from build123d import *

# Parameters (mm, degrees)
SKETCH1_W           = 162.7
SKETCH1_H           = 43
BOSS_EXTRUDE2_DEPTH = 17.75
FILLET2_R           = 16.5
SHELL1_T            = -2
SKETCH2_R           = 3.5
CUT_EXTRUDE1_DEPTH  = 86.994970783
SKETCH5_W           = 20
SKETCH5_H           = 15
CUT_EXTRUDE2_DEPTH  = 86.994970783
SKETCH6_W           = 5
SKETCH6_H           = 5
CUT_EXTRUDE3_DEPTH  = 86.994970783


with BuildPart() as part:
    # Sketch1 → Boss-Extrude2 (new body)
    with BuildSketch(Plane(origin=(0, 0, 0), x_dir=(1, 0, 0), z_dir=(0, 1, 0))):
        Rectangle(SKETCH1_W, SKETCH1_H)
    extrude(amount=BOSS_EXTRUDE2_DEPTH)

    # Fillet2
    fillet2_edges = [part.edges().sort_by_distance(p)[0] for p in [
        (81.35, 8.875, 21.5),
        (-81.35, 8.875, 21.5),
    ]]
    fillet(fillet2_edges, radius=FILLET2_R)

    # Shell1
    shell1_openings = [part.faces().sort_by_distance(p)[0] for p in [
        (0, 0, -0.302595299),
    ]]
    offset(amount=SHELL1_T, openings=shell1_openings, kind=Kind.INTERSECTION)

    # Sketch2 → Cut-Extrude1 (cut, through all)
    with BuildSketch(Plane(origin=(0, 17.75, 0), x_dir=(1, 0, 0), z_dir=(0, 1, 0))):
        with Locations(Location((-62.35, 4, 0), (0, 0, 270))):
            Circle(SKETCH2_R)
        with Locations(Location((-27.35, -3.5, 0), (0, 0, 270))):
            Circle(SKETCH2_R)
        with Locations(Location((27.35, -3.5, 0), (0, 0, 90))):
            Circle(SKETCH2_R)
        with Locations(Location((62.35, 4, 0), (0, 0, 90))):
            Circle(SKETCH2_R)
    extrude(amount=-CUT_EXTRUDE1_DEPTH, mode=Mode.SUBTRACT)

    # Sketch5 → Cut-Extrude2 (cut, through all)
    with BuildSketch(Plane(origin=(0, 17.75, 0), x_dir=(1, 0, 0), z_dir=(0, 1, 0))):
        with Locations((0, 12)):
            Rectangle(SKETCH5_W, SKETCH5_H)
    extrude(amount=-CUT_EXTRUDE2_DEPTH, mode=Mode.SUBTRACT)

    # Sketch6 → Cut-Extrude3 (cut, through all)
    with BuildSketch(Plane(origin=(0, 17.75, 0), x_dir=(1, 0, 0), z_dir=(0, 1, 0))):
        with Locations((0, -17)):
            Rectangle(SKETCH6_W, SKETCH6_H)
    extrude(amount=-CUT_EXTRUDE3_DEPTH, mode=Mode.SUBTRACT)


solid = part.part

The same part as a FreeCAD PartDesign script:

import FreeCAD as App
import Part
import Sketcher


def edges_at(feature, points):
    """Names of the edges that pass closest to the given points."""
    edges = feature.Shape.Edges
    near = lambda p: min(range(len(edges)), key=lambda i: edges[i].distToShape(Part.Vertex(*p))[0])
    return sorted({f"Edge{near(p) + 1}" for p in points})


def faces_at(feature, points):
    """Names of the faces that lie closest to the given points."""
    faces = feature.Shape.Faces
    near = lambda p: min(range(len(faces)), key=lambda i: faces[i].distToShape(Part.Vertex(*p))[0])
    return sorted({f"Face{near(p) + 1}" for p in points})

doc = App.newDocument("Part")
body = doc.addObject("PartDesign::Body", "Body")

# Sketch on XZ plane
sketch1 = body.newObject("Sketcher::SketchObject", "Sketch")
sketch1.AttachmentSupport = (doc.getObject("XZ_Plane"), [""])
sketch1.MapMode = "FlatFace"
sketch1.addGeometry([
    Part.LineSegment(App.Vector(-81, -22, 0), App.Vector(-81, 22, 0)),
    Part.LineSegment(App.Vector(-81, 22, 0), App.Vector(81, 22, 0)),
    Part.LineSegment(App.Vector(81, 22, 0), App.Vector(81, -22, 0)),
    Part.LineSegment(App.Vector(81, -22, 0), App.Vector(-81, -22, 0)),
], False)
sketch1.addConstraint([
    Sketcher.Constraint("Coincident", 0, 2, 1, 1),
    Sketcher.Constraint("Coincident", 1, 2, 2, 1),
    Sketcher.Constraint("Coincident", 2, 2, 3, 1),
    Sketcher.Constraint("Coincident", 3, 2, 0, 1),
    Sketcher.Constraint("Vertical", 0),
    Sketcher.Constraint("Horizontal", 1),
    Sketcher.Constraint("Vertical", 2),
    Sketcher.Constraint("Horizontal", 3),
    Sketcher.Constraint("Symmetric", 0, 2, 2, 2, -1, 1),
    Sketcher.Constraint("DistanceY", 0, 1, 0, 2, 43.0),
    Sketcher.Constraint("DistanceX", 1, 1, 1, 2, 162.7),
])
pad1 = body.newObject("PartDesign::Pad", "Pad")
pad1.Profile = sketch1
pad1.Length = 17.75
pad1.Reversed = True
doc.recompute()

fillet = body.newObject("PartDesign::Fillet", "Fillet")
fillet.Base = (pad1, edges_at(pad1, [(81.35, 8.875, 21.5), (-81.35, 8.875, 21.5)]))
fillet.Radius = 16.5
doc.recompute()

thickness = body.newObject("PartDesign::Thickness", "Thickness")
thickness.Base = (fillet, faces_at(fillet, [(0, 0, 0)]))
thickness.Value = 2
thickness.Reversed = True
thickness.Join = "Intersection"

# Sketch on XZ plane
sketch2 = body.newObject("Sketcher::SketchObject", "Sketch001")
sketch2.AttachmentSupport = (doc.getObject("XZ_Plane"), [""])
sketch2.MapMode = "FlatFace"
sketch2.AttachmentOffset = App.Placement(App.Vector(0, 0, -17.75), App.Rotation())
sketch2.addGeometry([
    Part.Circle(App.Vector(-62.4, -4, 0), App.Vector(0, 0, 1), 3.5),
    Part.Circle(App.Vector(-27.4, 3.5, 0), App.Vector(0, 0, 1), 3.5),
    Part.Circle(App.Vector(27.4, 3.5, 0), App.Vector(0, 0, 1), 3.5),
    Part.Circle(App.Vector(62.4, -4, 0), App.Vector(0, 0, 1), 3.5),
], False)
sketch2.addConstraint([
    Sketcher.Constraint("Equal", 0, 1),
    Sketcher.Constraint("Equal", 1, 2),
    Sketcher.Constraint("Equal", 2, 3),
    Sketcher.Constraint("Symmetric", 1, 3, 2, 3, -2),
    Sketcher.Constraint("Symmetric", 0, 3, 3, 3, -2),
    Sketcher.Constraint("Diameter", 0, 7.0),
    Sketcher.Constraint("DistanceY", 0, 3, -1, 1, 4.0),
    Sketcher.Constraint("DistanceX", 0, 3, 1, 3, 35.0),
    Sketcher.Constraint("DistanceY", -1, 1, 1, 3, 3.5),
    Sketcher.Constraint("DistanceX", 1, 3, 2, 3, 54.7),
])
pocket1 = body.newObject("PartDesign::Pocket", "Pocket")
pocket1.Profile = sketch2
pocket1.Type = "ThroughAll"
pocket1.Reversed = True

# Sketch on XZ plane
sketch3 = body.newObject("Sketcher::SketchObject", "Sketch002")
sketch3.AttachmentSupport = (doc.getObject("XZ_Plane"), [""])
sketch3.MapMode = "FlatFace"
sketch3.AttachmentOffset = App.Placement(App.Vector(0, 0, -17.75), App.Rotation())
sketch3.addGeometry([
    Part.LineSegment(App.Vector(-10, -20, 0), App.Vector(-10, -4, 0)),
    Part.LineSegment(App.Vector(-10, -4, 0), App.Vector(10, -4, 0)),
    Part.LineSegment(App.Vector(10, -4, 0), App.Vector(10, -20, 0)),
    Part.LineSegment(App.Vector(10, -20, 0), App.Vector(-10, -20, 0)),
], False)
sketch3.addConstraint([
    Sketcher.Constraint("Coincident", 0, 2, 1, 1),
    Sketcher.Constraint("Coincident", 1, 2, 2, 1),
    Sketcher.Constraint("Coincident", 2, 2, 3, 1),
    Sketcher.Constraint("Coincident", 3, 2, 0, 1),
    Sketcher.Constraint("Vertical", 0),
    Sketcher.Constraint("Horizontal", 1),
    Sketcher.Constraint("Vertical", 2),
    Sketcher.Constraint("Horizontal", 3),
    Sketcher.Constraint("DistanceX", 1, 1, 1, 2, 20.0),
    Sketcher.Constraint("DistanceY", 0, 1, 0, 2, 15.0),
    Sketcher.Constraint("DistanceX", 0, 2, -1, 1, 10.0),
    Sketcher.Constraint("DistanceY", 0, 2, -1, 1, 4.5),
])
pocket2 = body.newObject("PartDesign::Pocket", "Pocket001")
pocket2.Profile = sketch3
pocket2.Type = "ThroughAll"
pocket2.Reversed = True

# Sketch on XZ plane
sketch4 = body.newObject("Sketcher::SketchObject", "Sketch003")
sketch4.AttachmentSupport = (doc.getObject("XZ_Plane"), [""])
sketch4.MapMode = "FlatFace"
sketch4.AttachmentOffset = App.Placement(App.Vector(0, 0, -17.75), App.Rotation())
sketch4.addGeometry([
    Part.LineSegment(App.Vector(-2, 14, 0), App.Vector(-2, 20, 0)),
    Part.LineSegment(App.Vector(-2, 20, 0), App.Vector(2, 20, 0)),
    Part.LineSegment(App.Vector(2, 20, 0), App.Vector(2, 14, 0)),
    Part.LineSegment(App.Vector(2, 14, 0), App.Vector(-2, 14, 0)),
], False)
sketch4.addConstraint([
    Sketcher.Constraint("Coincident", 0, 2, 1, 1),
    Sketcher.Constraint("Coincident", 1, 2, 2, 1),
    Sketcher.Constraint("Coincident", 2, 2, 3, 1),
    Sketcher.Constraint("Coincident", 3, 2, 0, 1),
    Sketcher.Constraint("Vertical", 0),
    Sketcher.Constraint("Horizontal", 1),
    Sketcher.Constraint("Vertical", 2),
    Sketcher.Constraint("Horizontal", 3),
    Sketcher.Constraint("Equal", 3, 0),
    Sketcher.Constraint("DistanceX", 1, 1, 1, 2, 5.0),
    Sketcher.Constraint("DistanceX", 0, 2, -1, 1, 2.5),
    Sketcher.Constraint("DistanceY", -1, 1, 0, 2, 19.5),
])
pocket3 = body.newObject("PartDesign::Pocket", "Pocket002")
pocket3.Profile = sketch4
pocket3.Type = "ThroughAll"
pocket3.Reversed = True

doc.recompute()
